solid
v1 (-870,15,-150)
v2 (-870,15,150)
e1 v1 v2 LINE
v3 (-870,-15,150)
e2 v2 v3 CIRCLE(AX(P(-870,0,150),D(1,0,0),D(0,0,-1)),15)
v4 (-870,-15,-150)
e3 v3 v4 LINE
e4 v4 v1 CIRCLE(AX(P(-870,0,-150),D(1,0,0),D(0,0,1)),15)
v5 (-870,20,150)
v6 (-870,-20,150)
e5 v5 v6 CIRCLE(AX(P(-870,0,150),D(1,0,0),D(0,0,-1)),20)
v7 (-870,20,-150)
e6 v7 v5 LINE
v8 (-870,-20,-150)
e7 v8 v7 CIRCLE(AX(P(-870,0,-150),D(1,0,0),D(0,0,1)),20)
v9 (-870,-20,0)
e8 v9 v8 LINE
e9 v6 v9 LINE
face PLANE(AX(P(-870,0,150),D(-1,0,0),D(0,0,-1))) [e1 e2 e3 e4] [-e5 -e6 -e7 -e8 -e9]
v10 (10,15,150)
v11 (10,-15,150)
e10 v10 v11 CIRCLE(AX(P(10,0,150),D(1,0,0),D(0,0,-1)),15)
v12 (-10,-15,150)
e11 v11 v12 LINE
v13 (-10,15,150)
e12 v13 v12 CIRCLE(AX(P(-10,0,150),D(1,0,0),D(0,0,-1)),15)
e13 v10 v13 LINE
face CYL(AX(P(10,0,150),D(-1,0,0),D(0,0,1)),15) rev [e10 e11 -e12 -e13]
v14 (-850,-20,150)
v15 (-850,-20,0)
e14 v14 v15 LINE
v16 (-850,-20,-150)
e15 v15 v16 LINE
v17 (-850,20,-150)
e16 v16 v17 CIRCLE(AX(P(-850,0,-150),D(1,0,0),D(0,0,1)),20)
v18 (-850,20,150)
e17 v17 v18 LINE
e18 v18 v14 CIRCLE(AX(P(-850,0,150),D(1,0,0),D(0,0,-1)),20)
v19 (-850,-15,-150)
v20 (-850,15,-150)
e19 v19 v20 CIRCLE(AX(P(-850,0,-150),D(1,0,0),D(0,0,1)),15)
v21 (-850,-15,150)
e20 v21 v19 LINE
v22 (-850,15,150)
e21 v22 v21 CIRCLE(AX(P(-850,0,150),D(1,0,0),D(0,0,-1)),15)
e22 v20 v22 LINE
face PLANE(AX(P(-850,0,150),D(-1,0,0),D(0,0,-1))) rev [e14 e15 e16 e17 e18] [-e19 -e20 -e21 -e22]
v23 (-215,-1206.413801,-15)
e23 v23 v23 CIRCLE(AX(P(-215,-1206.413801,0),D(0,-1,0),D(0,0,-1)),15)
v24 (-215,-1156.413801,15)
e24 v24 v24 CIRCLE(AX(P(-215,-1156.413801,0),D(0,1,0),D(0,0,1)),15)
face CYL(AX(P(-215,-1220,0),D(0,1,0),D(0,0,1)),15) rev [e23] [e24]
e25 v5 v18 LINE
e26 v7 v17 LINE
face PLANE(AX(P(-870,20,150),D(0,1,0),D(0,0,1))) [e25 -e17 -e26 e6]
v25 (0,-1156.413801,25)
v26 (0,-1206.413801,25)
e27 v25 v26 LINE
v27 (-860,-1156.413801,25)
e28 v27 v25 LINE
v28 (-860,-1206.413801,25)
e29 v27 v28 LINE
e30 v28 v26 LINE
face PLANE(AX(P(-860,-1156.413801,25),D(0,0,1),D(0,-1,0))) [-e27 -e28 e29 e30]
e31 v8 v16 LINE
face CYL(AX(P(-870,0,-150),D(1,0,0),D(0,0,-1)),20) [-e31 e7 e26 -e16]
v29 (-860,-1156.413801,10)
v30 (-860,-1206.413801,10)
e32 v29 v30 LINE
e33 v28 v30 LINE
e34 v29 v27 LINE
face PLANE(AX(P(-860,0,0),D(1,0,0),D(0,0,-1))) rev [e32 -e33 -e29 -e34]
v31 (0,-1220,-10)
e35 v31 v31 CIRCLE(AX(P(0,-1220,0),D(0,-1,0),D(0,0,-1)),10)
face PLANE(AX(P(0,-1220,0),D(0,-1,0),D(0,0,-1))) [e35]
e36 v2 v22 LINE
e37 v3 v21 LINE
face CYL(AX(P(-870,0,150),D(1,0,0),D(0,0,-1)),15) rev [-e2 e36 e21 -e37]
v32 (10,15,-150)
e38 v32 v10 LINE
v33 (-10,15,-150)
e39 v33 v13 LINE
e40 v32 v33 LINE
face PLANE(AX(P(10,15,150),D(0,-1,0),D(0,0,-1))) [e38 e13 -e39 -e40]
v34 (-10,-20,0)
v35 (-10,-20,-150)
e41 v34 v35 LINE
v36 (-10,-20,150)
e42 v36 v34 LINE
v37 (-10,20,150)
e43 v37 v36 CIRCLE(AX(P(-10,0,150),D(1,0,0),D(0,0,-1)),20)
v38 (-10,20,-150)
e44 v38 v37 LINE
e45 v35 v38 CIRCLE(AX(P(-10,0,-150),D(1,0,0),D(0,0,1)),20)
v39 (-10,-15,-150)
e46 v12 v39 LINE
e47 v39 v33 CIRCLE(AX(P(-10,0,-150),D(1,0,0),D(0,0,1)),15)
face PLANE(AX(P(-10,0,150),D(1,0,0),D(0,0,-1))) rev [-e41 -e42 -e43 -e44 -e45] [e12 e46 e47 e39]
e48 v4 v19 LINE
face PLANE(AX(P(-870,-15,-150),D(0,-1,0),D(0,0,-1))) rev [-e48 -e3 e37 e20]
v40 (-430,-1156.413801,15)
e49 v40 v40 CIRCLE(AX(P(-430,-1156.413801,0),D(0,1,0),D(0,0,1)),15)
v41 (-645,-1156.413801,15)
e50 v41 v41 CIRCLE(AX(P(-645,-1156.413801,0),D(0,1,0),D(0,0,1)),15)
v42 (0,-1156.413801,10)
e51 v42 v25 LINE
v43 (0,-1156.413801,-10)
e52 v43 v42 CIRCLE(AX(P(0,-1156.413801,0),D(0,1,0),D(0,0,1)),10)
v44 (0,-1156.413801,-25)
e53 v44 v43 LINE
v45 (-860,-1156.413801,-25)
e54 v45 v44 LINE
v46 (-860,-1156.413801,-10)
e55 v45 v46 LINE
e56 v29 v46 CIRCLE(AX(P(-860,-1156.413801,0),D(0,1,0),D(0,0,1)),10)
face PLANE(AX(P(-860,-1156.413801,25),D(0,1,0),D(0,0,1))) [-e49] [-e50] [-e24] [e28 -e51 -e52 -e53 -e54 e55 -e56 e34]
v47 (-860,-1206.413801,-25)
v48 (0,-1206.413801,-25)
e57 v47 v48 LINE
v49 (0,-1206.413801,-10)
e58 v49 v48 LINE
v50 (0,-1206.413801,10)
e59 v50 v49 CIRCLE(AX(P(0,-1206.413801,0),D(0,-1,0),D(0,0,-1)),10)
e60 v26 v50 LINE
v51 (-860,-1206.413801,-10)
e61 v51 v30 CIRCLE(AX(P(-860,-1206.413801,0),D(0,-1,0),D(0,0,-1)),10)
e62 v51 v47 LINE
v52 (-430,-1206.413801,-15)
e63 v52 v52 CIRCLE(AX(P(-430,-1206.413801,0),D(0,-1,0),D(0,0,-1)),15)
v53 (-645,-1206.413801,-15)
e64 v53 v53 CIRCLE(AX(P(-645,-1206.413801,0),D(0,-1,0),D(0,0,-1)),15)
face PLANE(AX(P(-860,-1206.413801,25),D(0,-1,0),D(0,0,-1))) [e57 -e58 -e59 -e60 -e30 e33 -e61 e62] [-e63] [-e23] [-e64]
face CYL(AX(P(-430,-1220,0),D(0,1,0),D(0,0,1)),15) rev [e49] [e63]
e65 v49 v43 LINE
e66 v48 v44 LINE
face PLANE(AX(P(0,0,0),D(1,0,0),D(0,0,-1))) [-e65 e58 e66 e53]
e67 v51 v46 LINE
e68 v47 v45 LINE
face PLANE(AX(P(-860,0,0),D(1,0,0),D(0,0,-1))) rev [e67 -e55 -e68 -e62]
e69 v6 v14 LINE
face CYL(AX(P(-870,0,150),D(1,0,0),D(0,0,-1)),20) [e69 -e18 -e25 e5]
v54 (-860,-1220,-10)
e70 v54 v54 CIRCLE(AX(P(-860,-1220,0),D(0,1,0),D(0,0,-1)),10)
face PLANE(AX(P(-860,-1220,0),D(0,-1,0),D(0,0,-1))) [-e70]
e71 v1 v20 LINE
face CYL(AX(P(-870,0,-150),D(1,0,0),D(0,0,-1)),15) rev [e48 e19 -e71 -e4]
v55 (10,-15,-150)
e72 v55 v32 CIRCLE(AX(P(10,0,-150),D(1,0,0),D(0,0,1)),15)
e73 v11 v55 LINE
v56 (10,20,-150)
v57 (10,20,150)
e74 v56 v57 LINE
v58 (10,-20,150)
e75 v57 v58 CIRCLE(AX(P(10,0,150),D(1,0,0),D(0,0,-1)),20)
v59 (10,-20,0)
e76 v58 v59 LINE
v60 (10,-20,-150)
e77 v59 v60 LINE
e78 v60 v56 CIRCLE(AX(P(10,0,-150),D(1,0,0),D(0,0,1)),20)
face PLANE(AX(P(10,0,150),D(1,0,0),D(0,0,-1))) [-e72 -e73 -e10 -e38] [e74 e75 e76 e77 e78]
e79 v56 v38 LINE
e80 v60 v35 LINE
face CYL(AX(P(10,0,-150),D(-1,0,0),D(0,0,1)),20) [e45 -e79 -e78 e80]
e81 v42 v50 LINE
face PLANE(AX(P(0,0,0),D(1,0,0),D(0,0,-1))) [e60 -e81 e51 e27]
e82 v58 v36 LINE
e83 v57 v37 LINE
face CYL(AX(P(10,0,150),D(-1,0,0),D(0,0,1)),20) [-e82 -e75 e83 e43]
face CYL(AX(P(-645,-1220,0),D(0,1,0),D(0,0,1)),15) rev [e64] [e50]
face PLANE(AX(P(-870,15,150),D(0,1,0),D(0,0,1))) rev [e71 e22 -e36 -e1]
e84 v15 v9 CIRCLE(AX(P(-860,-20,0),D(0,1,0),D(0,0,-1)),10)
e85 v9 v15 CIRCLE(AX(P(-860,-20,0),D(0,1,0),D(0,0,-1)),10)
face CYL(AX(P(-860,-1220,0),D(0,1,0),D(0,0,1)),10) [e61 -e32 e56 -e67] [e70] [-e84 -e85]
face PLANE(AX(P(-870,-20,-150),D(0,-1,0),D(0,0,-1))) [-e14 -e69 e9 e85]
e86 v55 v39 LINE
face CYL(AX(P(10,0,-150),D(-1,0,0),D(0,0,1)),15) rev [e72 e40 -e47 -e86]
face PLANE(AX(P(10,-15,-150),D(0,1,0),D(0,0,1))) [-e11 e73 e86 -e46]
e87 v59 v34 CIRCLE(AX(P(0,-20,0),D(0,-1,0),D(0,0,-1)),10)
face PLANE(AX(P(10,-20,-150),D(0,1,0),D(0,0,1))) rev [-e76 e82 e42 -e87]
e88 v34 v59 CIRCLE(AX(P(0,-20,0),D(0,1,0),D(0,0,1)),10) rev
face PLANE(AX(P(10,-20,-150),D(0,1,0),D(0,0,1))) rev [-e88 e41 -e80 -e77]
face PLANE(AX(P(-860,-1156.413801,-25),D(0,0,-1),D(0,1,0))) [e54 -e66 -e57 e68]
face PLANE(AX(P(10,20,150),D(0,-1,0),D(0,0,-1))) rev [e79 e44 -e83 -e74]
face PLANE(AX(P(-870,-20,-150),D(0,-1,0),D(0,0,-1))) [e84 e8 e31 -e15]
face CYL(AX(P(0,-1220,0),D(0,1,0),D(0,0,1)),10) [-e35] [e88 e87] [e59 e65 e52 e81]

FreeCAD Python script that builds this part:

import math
import FreeCAD as App
import Part
import Sketcher
from FreeCAD import Vector
Q = App.Units.Quantity

doc = App.newDocument("Part")
body = doc.addObject("PartDesign::Body", "Body")

sketch1 = body.newObject("Sketcher::SketchObject", "Sketch")
sketch1.AttachmentSupport = (doc.getObject("YZ_Plane"), [""])
sketch1.MapMode = "FlatFace"
sketch1.addGeometry([
    Part.LineSegment(Vector(-20, 150, 0), Vector(-20, -150, 0)),
    Part.ArcOfCircle(Part.Circle(Vector(0, -150, 0), Vector(0, 0, 1), 20), math.radians(180), math.radians(360)),
    Part.LineSegment(Vector(20, -150, 0), Vector(20, 150, 0)),
    Part.ArcOfCircle(Part.Circle(Vector(0, 150, 0), Vector(0, 0, 1), 20), math.radians(0), math.radians(180)),
    Part.LineSegment(Vector(15, 150, 0), Vector(15, -150, 0)),
    Part.ArcOfCircle(Part.Circle(Vector(0, -150, 0), Vector(0, 0, 1), 15), math.radians(180), math.radians(360)),
    Part.LineSegment(Vector(-15, -150, 0), Vector(-15, 150, 0)),
    Part.ArcOfCircle(Part.Circle(Vector(0, 150, 0), Vector(0, 0, 1), 15), math.radians(0), math.radians(180)),
], False)
sketch1.addConstraint([
    Sketcher.Constraint("Tangent", 0, 2, 1, 1),
    Sketcher.Constraint("Tangent", 1, 2, 2, 1),
    Sketcher.Constraint("Tangent", 2, 2, 3, 1),
    Sketcher.Constraint("Tangent", 3, 2, 0, 1),
    Sketcher.Constraint("Tangent", 4, 2, 5, 2),
    Sketcher.Constraint("Tangent", 5, 1, 6, 1),
    Sketcher.Constraint("Tangent", 6, 2, 7, 2),
    Sketcher.Constraint("Tangent", 7, 1, 4, 1),
    Sketcher.Constraint("Vertical", 0),
    Sketcher.Constraint("Vertical", 2),
    Sketcher.Constraint("Vertical", 4),
    Sketcher.Constraint("Vertical", 6),
    Sketcher.Constraint("Coincident", 5, 3, 1, 3),
    Sketcher.Constraint("Symmetric", 1, 3, 3, 3, -1, 1),
    Sketcher.Constraint("Horizontal", 7, 3, 2, 2),
    Sketcher.Constraint("Radius", 1, Q("20 mm")),
    Sketcher.Constraint("Radius", 5, Q("15 mm")),
    Sketcher.Constraint("DistanceY", 0, 2, 0, 1, Q("300 mm")),
])
pad1 = body.newObject("PartDesign::Pad", "Pad")
pad1.Profile = sketch1
pad1.Length = 20
pad1.Midplane = True

sketch2 = body.newObject("Sketcher::SketchObject", "Sketch001")
sketch2.AttachmentSupport = (doc.getObject("XZ_Plane"), [""])
sketch2.MapMode = "FlatFace"
sketch2.AttachmentOffset = App.Placement(Vector(0, 0, 20), App.Rotation())
sketch2.addGeometry(Part.Circle(Vector(0, 0, 0), Vector(0, 0, 1), 10), False)
sketch2.addConstraint([
    Sketcher.Constraint("Coincident", 0, 3, -1, 1),
    Sketcher.Constraint("Diameter", 0, Q("20 mm")),
])
pad2 = body.newObject("PartDesign::Pad", "Pad001")
pad2.Profile = sketch2
pad2.Length = 1200

sketch3 = body.newObject("Sketcher::SketchObject", "Sketch002")
sketch3.AttachmentSupport = (doc.getObject("YZ_Plane"), [""])
sketch3.MapMode = "FlatFace"
sketch3.addGeometry([
    Part.LineSegment(Vector(-1156, 25, 0), Vector(-1206, 25, 0)),
    Part.LineSegment(Vector(-1206, 25, 0), Vector(-1206, -25, 0)),
    Part.LineSegment(Vector(-1206, -25, 0), Vector(-1156, -25, 0)),
    Part.LineSegment(Vector(-1156, -25, 0), Vector(-1156, 25, 0)),
], False)
sketch3.addConstraint([
    Sketcher.Constraint("Coincident", 0, 2, 1, 1),
    Sketcher.Constraint("Coincident", 1, 2, 2, 1),
    Sketcher.Constraint("Coincident", 2, 2, 3, 1),
    Sketcher.Constraint("Coincident", 3, 2, 0, 1),
    Sketcher.Constraint("Horizontal", 0),
    Sketcher.Constraint("Vertical", 1),
    Sketcher.Constraint("Horizontal", 2),
    Sketcher.Constraint("Vertical", 3),
    Sketcher.Constraint("Equal", 2, 1),
    Sketcher.Constraint("DistanceX", 0, 2, 0, 1, Q("50 mm")),
    Sketcher.Constraint("DistanceY", -1, 1, 0, 2, Q("25 mm")),
    Sketcher.Constraint("DistanceX", 0, 2, -1, 1, Q("1206.413801 mm")),
])
pad3 = body.newObject("PartDesign::Pad", "Pad002")
pad3.Profile = sketch3
pad3.Length = 860
pad3.Reversed = True

sketch4 = body.newObject("Sketcher::SketchObject", "Sketch003")
sketch4.AttachmentSupport = (doc.getObject("XZ_Plane"), [""])
sketch4.MapMode = "FlatFace"
sketch4.AttachmentOffset = App.Placement(Vector(0, 0, 1156.413801), App.Rotation())
sketch4.addGeometry([
    Part.Circle(Vector(-645, 0, 0), Vector(0, 0, 1), 15),
    Part.Circle(Vector(-430, 0, 0), Vector(0, 0, 1), 15),
    Part.Circle(Vector(-215, 0, 0), Vector(0, 0, 1), 15),
], False)
sketch4.addConstraint([
    Sketcher.Constraint("Equal", 0, 1),
    Sketcher.Constraint("Equal", 1, 2),
    Sketcher.Constraint("PointOnObject", 0, 3, -1),
    Sketcher.Constraint("PointOnObject", 1, 3, -1),
    Sketcher.Constraint("PointOnObject", 2, 3, -1),
    Sketcher.Constraint("Diameter", 0, Q("30 mm")),
    Sketcher.Constraint("DistanceX", 0, 3, -1, 1, Q("645 mm")),
    Sketcher.Constraint("DistanceX", 1, 3, -1, 1, Q("430 mm")),
    Sketcher.Constraint("DistanceX", 2, 3, -1, 1, Q("215 mm")),
])
pocket1 = body.newObject("PartDesign::Pocket", "Pocket")
pocket1.Profile = sketch4
pocket1.Type = "ThroughAll"
pocket1.Midplane = True
doc.recompute()

datumplane = body.newObject("PartDesign::Plane", "DatumPlane")
datumplane.AttachmentSupport = (doc.getObject("YZ_Plane"), [""])
datumplane.MapMode = "FlatFace"
datumplane.AttachmentOffset = App.Placement(Vector(0, 0, -430), App.Rotation())
mirrored = body.newObject("PartDesign::Mirrored", "Mirrored")
mirrored.Originals = [pad2]
mirrored.MirrorPlane = (datumplane, [""])
body.Tip = mirrored
doc.recompute()

datumplane2 = body.newObject("PartDesign::Plane", "DatumPlane001")
datumplane2.AttachmentSupport = (doc.getObject("YZ_Plane"), [""])
datumplane2.MapMode = "FlatFace"
datumplane2.AttachmentOffset = App.Placement(Vector(0, 0, -430), App.Rotation())
mirrored2 = body.newObject("PartDesign::Mirrored", "Mirrored001")
mirrored2.Originals = [pad1]
mirrored2.MirrorPlane = (datumplane2, [""])
body.Tip = mirrored2

doc.recompute()
